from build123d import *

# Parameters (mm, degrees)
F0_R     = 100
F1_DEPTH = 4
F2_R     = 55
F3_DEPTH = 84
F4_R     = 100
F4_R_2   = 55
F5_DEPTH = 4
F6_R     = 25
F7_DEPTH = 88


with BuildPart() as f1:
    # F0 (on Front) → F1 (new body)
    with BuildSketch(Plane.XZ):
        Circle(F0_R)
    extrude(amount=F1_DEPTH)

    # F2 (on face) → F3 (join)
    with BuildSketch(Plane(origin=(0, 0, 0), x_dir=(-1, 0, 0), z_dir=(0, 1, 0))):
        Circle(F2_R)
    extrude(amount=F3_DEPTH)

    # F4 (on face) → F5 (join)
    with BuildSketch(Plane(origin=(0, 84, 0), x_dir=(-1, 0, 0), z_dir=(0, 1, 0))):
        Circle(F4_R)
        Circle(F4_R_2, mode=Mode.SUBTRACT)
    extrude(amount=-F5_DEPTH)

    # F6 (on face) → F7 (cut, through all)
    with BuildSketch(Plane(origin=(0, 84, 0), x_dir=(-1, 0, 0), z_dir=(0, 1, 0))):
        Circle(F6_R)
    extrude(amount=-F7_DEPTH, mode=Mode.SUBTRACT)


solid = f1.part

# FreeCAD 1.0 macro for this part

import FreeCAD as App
import Part
import Sketcher
from FreeCAD import Vector
Q = App.Units.Quantity

doc = App.newDocument("Part")
body = doc.addObject("PartDesign::Body", "Body")

sketch1 = body.newObject("Sketcher::SketchObject", "Sketch")
sketch1.AttachmentSupport = (doc.getObject("XZ_Plane"), [""])
sketch1.MapMode = "FlatFace"
sketch1.addGeometry(Part.Circle(Vector(0, 0, 0), Vector(0, 0, 1), 100), False)
sketch1.addConstraint([
    Sketcher.Constraint("Coincident", 0, 3, -1, 1),
    Sketcher.Constraint("Diameter", 0, Q("200 mm")),
])
pad1 = body.newObject("PartDesign::Pad", "Pad")
pad1.Profile = sketch1
pad1.Length = 4

sketch2 = body.newObject("Sketcher::SketchObject", "Sketch001")
sketch2.AttachmentSupport = (doc.getObject("XZ_Plane"), [""])
sketch2.MapMode = "FlatFace"
sketch2.addGeometry(Part.Circle(Vector(0, 0, 0), Vector(0, 0, 1), 55), False)
sketch2.addConstraint([
    Sketcher.Constraint("Coincident", 0, 3, -1, 1),
    Sketcher.Constraint("Diameter", 0, Q("110 mm")),
])
pad2 = body.newObject("PartDesign::Pad", "Pad001")
pad2.Profile = sketch2
pad2.Length = 84
pad2.Reversed = True

sketch3 = body.newObject("Sketcher::SketchObject", "Sketch002")
sketch3.AttachmentSupport = (doc.getObject("XZ_Plane"), [""])
sketch3.MapMode = "FlatFace"
sketch3.AttachmentOffset = App.Placement(Vector(0, 0, -84), App.Rotation())
sketch3.addGeometry([
    Part.Circle(Vector(0, 0, 0), Vector(0, 0, 1), 100),
    Part.Circle(Vector(0, 0, 0), Vector(0, 0, 1), 55),
], False)
sketch3.addConstraint([
    Sketcher.Constraint("Coincident", 0, 3, -1, 1),
    Sketcher.Constraint("Coincident", 1, 3, -1, 1),
    Sketcher.Constraint("Diameter", 0, Q("200 mm")),
    Sketcher.Constraint("Diameter", 1, Q("110 mm")),
])
pad3 = body.newObject("PartDesign::Pad", "Pad002")
pad3.Profile = sketch3
pad3.Length = 4

sketch4 = body.newObject("Sketcher::SketchObject", "Sketch003")
sketch4.AttachmentSupport = (doc.getObject("XZ_Plane"), [""])
sketch4.MapMode = "FlatFace"
sketch4.AttachmentOffset = App.Placement(Vector(0, 0, -84), App.Rotation())
sketch4.addGeometry(Part.Circle(Vector(0, 0, 0), Vector(0, 0, 1), 25), False)
sketch4.addConstraint([
    Sketcher.Constraint("Coincident", 0, 3, -1, 1),
    Sketcher.Constraint("Diameter", 0, Q("50 mm")),
])
pocket1 = body.newObject("PartDesign::Pocket", "Pocket")
pocket1.Profile = sketch4
pocket1.Type = "ThroughAll"
pocket1.Reversed = True

doc.recompute()
